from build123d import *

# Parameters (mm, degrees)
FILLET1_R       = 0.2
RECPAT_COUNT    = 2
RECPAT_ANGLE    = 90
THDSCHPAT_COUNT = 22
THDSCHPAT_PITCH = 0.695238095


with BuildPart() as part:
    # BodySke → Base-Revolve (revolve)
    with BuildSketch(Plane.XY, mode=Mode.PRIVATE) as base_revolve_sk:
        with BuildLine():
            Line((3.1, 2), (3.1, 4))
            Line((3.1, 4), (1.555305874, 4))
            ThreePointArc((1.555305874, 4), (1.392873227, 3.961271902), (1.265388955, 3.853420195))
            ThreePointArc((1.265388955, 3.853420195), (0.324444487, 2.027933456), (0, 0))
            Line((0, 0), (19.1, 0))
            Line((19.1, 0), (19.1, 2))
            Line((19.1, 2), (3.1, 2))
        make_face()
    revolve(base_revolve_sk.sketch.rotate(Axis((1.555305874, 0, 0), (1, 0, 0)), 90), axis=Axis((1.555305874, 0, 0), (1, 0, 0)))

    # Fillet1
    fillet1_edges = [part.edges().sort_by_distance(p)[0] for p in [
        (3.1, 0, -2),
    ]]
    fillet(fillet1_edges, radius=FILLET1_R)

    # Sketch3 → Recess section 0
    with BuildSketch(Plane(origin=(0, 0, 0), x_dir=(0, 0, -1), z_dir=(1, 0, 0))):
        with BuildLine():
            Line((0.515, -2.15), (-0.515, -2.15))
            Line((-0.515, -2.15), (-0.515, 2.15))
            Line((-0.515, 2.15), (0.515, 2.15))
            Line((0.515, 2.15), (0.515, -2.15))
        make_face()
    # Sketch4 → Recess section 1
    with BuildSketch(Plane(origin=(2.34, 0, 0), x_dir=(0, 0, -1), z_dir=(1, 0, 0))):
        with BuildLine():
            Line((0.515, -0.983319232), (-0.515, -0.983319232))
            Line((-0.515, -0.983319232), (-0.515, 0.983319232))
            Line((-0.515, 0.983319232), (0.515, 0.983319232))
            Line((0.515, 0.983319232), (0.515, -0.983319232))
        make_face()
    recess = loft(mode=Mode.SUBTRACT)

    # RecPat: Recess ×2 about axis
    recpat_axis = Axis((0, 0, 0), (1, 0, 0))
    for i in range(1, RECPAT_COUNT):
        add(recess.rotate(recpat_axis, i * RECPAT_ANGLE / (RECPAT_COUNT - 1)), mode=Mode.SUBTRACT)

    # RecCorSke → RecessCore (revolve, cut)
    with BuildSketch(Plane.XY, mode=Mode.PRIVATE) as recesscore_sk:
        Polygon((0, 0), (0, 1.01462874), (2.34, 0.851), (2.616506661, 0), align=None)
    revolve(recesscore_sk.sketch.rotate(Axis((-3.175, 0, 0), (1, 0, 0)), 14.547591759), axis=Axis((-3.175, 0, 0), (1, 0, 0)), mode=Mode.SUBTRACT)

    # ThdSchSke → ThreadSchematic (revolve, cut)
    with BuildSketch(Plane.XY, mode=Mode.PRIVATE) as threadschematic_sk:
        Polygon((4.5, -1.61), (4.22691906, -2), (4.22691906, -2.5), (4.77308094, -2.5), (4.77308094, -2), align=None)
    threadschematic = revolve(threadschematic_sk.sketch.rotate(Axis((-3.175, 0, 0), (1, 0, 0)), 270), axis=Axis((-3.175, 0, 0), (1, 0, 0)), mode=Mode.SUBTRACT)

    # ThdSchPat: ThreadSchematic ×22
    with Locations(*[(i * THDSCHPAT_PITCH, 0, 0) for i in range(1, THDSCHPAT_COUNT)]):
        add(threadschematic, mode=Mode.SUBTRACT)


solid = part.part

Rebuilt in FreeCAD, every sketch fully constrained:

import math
import FreeCAD as App
import Part
import Sketcher
Q = App.Units.Quantity


def edges_at(feature, points):
    """Names of the edges that pass closest to the given points."""
    edges = feature.Shape.Edges
    near = lambda p: min(range(len(edges)), key=lambda i: edges[i].distToShape(Part.Vertex(*p))[0])
    return sorted({f"Edge{near(p) + 1}" for p in points})


def add_polygon(sketch, points):
    """Adds a closed chain of lines whose ends are joined by coincident constraints."""
    first, n = sketch.GeometryCount, len(points)
    for a, b in zip(points, points[1:] + points[:1]):
        sketch.addGeometry(Part.LineSegment(App.Vector(*a, 0), App.Vector(*b, 0)), False)
    for i in range(n):
        sketch.addConstraint(Sketcher.Constraint("Coincident", first + i, 2, first + (i + 1) % n, 1))

doc = App.newDocument("Part")
body = doc.addObject("PartDesign::Body", "Body")

sketch1 = body.newObject("Sketcher::SketchObject", "Sketch")
sketch1.AttachmentSupport = (doc.getObject("XY_Plane"), [""])
sketch1.MapMode = "FlatFace"
sketch1.addGeometry(Part.LineSegment(App.Vector(3.1, 2, 0), App.Vector(3.1, 4, 0)), False)
sketch1.addGeometry(Part.LineSegment(App.Vector(3.1, 4, 0), App.Vector(1.56, 4, 0)), False)
sketch1.addGeometry(Part.ArcOfCircle(Part.Circle(App.Vector(1.56, 3.64, 0), App.Vector(0, 0, 1), 0.36), math.radians(90), math.radians(144)), False)
sketch1.addGeometry(Part.ArcOfCircle(Part.Circle(App.Vector(6.5, 0, 0), App.Vector(0, 0, 1), 6.5), math.radians(144), math.radians(180)), False)
sketch1.addGeometry(Part.LineSegment(App.Vector(0, 0, 0), App.Vector(19.1, 0, 0)), False)
sketch1.addGeometry(Part.LineSegment(App.Vector(19.1, 0, 0), App.Vector(19.1, 2, 0)), False)
sketch1.addGeometry(Part.LineSegment(App.Vector(19.1, 2, 0), App.Vector(3.1, 2, 0)), False)
sketch1.addConstraint(Sketcher.Constraint("Coincident", 0, 2, 1, 1))
sketch1.addConstraint(Sketcher.Constraint("Tangent", 1, 2, 2, 1))
sketch1.addConstraint(Sketcher.Constraint("Tangent", 2, 2, 3, 1))
sketch1.addConstraint(Sketcher.Constraint("Coincident", 3, 2, 4, 1))
sketch1.addConstraint(Sketcher.Constraint("Coincident", 4, 2, 5, 1))
sketch1.addConstraint(Sketcher.Constraint("Coincident", 5, 2, 6, 1))
sketch1.addConstraint(Sketcher.Constraint("Coincident", 6, 2, 0, 1))
sketch1.addConstraint(Sketcher.Constraint("Vertical", 0))
sketch1.addConstraint(Sketcher.Constraint("Horizontal", 1))
sketch1.addConstraint(Sketcher.Constraint("Horizontal", 4))
sketch1.addConstraint(Sketcher.Constraint("Vertical", 5))
sketch1.addConstraint(Sketcher.Constraint("Horizontal", 6))
sketch1.addConstraint(Sketcher.Constraint("Coincident", 3, 2, -1, 1))
sketch1.addConstraint(Sketcher.Constraint("PointOnObject", 3, 3, -1))
sketch1.addConstraint(Sketcher.Constraint("Equal", 0, 5))
sketch1.addConstraint(Sketcher.Constraint("Radius", 3, Q("6.5 mm")))
sketch1.addConstraint(Sketcher.Constraint("DistanceX", 6, 2, 6, 1, Q("16 mm")))
sketch1.addConstraint(Sketcher.Constraint("DistanceY", 0, 1, 0, 2, Q("2 mm")))
sketch1.addConstraint(Sketcher.Constraint("Radius", 2, Q("0.36 mm")))
sketch1.addConstraint(Sketcher.Constraint("DistanceX", 4, 1, 4, 2, Q("19.1 mm")))
revolution = body.newObject("PartDesign::Revolution", "Revolution")
revolution.Profile = sketch1
revolution.ReferenceAxis = (sketch1, ["H_Axis"])
revolution.Angle = 360
doc.recompute()

fillet = body.newObject("PartDesign::Fillet", "Fillet")
fillet.Base = (revolution, edges_at(revolution, [(3.1, 0, -2)]))
fillet.Radius = 0.2

sketch2 = body.newObject("Sketcher::SketchObject", "Sketch001")
sketch2.AttachmentSupport = (doc.getObject("YZ_Plane"), [""])
sketch2.MapMode = "FlatFace"
add_polygon(sketch2, [(-2.1, 0.5), (-2.1, -0.5), (2.1, -0.5), (2.1, 0.5)])
sketch2.addConstraint(Sketcher.Constraint("Vertical", 0))
sketch2.addConstraint(Sketcher.Constraint("Horizontal", 1))
sketch2.addConstraint(Sketcher.Constraint("Vertical", 2))
sketch2.addConstraint(Sketcher.Constraint("Horizontal", 3))
sketch2.addConstraint(Sketcher.Constraint("Symmetric", 0, 2, 2, 2, -1, 1))
sketch2.addConstraint(Sketcher.Constraint("DistanceX", 1, 1, 1, 2, Q("4.3 mm")))
sketch2.addConstraint(Sketcher.Constraint("DistanceY", 0, 2, 0, 1, Q("1.03 mm")))

sketch3 = body.newObject("Sketcher::SketchObject", "Sketch002")
sketch3.AttachmentSupport = (doc.getObject("YZ_Plane"), [""])
sketch3.MapMode = "FlatFace"
sketch3.AttachmentOffset = App.Placement(App.Vector(0, 0, 2.34), App.Rotation())
add_polygon(sketch3, [(-1, 0.5), (-1, -0.5), (1, -0.5), (1, 0.5)])
sketch3.addConstraint(Sketcher.Constraint("Vertical", 0))
sketch3.addConstraint(Sketcher.Constraint("Horizontal", 1))
sketch3.addConstraint(Sketcher.Constraint("Vertical", 2))
sketch3.addConstraint(Sketcher.Constraint("Horizontal", 3))
sketch3.addConstraint(Sketcher.Constraint("Symmetric", 0, 2, 2, 2, -1, 1))
sketch3.addConstraint(Sketcher.Constraint("DistanceY", 0, 2, 0, 1, Q("1.03 mm")))
sketch3.addConstraint(Sketcher.Constraint("DistanceX", 1, 1, 1, 2, Q("1.966638 mm")))

subtractiveloft = body.newObject("PartDesign::SubtractiveLoft", "SubtractiveLoft")
subtractiveloft.Profile = sketch2
subtractiveloft.Sections = [sketch3]
doc.recompute()

polarpattern = body.newObject("PartDesign::PolarPattern", "PolarPattern")
polarpattern.Originals = [subtractiveloft]
polarpattern.Axis = (doc.getObject("X_Axis"), [""])
polarpattern.Angle = 90
polarpattern.Occurrences = 2
body.Tip = polarpattern

sketch4 = body.newObject("Sketcher::SketchObject", "Sketch003")
sketch4.AttachmentSupport = (doc.getObject("XY_Plane"), [""])
sketch4.MapMode = "FlatFace"
add_polygon(sketch4, [(0, 1), (0, 0), (2.6, 0), (2.3, 0.9)])
sketch4.addConstraint(Sketcher.Constraint("Vertical", 0))
sketch4.addConstraint(Sketcher.Constraint("Horizontal", 1))
sketch4.addConstraint(Sketcher.Constraint("Coincident", 0, 2, -1, 1))
sketch4.addConstraint(Sketcher.Constraint("Angle", 2, Q("108 deg")))
sketch4.addConstraint(Sketcher.Constraint("Angle", 3, Q("176 deg")))
sketch4.addConstraint(Sketcher.Constraint("DistanceX", -1, 1, 2, 2, Q("2.34 mm")))
sketch4.addConstraint(Sketcher.Constraint("DistanceY", -1, 1, 2, 2, Q("0.851 mm")))
groove = body.newObject("PartDesign::Groove", "Groove")
groove.Profile = sketch4
groove.ReferenceAxis = (sketch4, ["H_Axis"])
groove.Angle = 360

sketch5 = body.newObject("Sketcher::SketchObject", "Sketch004")
sketch5.AttachmentSupport = (doc.getObject("XY_Plane"), [""])
sketch5.MapMode = "FlatFace"
add_polygon(sketch5, [(4.5, -1.61), (4.23, -2), (4.23, -2.5), (4.77, -2.5), (4.77, -2)])
sketch5.addConstraint(Sketcher.Constraint("Vertical", 1))
sketch5.addConstraint(Sketcher.Constraint("Horizontal", 2))
sketch5.addConstraint(Sketcher.Constraint("Vertical", 3))
sketch5.addConstraint(Sketcher.Constraint("Horizontal", 0, 2, 3, 2))
sketch5.addConstraint(Sketcher.Constraint("Equal", 0, 4))
sketch5.addConstraint(Sketcher.Constraint("Angle", 0, Q("-125 deg")))
sketch5.addConstraint(Sketcher.Constraint("DistanceY", 1, 2, 1, 1, Q("0.5 mm")))
sketch5.addConstraint(Sketcher.Constraint("DistanceY", 0, 2, -1, 1, Q("2 mm")))
sketch5.addConstraint(Sketcher.Constraint("DistanceX", -1, 1, 4, 2, Q("4.5 mm")))
sketch5.addConstraint(Sketcher.Constraint("DistanceY", 4, 2, -1, 1, Q("1.61 mm")))
groove2 = body.newObject("PartDesign::Groove", "Groove001")
groove2.Profile = sketch5
groove2.ReferenceAxis = (sketch5, ["H_Axis"])
groove2.Angle = 360
doc.recompute()

linearpattern = body.newObject("PartDesign::LinearPattern", "LinearPattern")
linearpattern.Originals = [groove2]
linearpattern.Direction = (doc.getObject("X_Axis"), [""])
linearpattern.Mode = "offset"
linearpattern.Offset = 0.695238
linearpattern.Occurrences = 22
body.Tip = linearpattern

doc.recompute()
